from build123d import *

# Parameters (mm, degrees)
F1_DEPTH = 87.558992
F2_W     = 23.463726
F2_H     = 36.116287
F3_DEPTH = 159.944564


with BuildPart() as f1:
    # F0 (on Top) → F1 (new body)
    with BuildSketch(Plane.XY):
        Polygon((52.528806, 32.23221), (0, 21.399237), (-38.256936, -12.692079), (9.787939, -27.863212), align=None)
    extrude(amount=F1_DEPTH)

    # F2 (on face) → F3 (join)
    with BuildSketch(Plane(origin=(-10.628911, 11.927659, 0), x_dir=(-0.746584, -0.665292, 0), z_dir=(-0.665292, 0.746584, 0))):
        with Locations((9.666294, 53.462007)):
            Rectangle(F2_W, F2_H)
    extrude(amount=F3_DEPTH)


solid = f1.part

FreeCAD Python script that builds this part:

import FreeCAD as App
import Part
import Sketcher

V = App.Vector


def add_polygon(sketch, points):
    """Adds a closed chain of lines whose ends are joined by coincident constraints."""
    first, n = sketch.GeometryCount, len(points)
    for a, b in zip(points, points[1:] + points[:1]):
        sketch.addGeometry(Part.LineSegment(App.Vector(*a, 0), App.Vector(*b, 0)), False)
    for i in range(n):
        sketch.addConstraint(Sketcher.Constraint("Coincident", first + i, 2, first + (i + 1) % n, 1))

doc = App.newDocument("Part")
body = doc.addObject("PartDesign::Body", "Body")

sketch1 = body.newObject("Sketcher::SketchObject", "Sketch")
sketch1.AttachmentSupport = (doc.getObject("XY_Plane"), [""])
sketch1.MapMode = "FlatFace"
add_polygon(sketch1, [(53, 32), (0, 21), (-38, -13), (10, -28)])
sketch1.addConstraint(Sketcher.Constraint("PointOnObject", 0, 2, -2))
sketch1.addConstraint(Sketcher.Constraint("DistanceY", 1, 2, -1, 1, 12.692079))
sketch1.addConstraint(Sketcher.Constraint("DistanceX", -1, 1, 2, 2, 9.787939))
sketch1.addConstraint(Sketcher.Constraint("DistanceY", -1, 1, 3, 2, 32.23221))
sketch1.addConstraint(Sketcher.Constraint("DistanceY", 2, 2, 0, 2, 49.262449))
sketch1.addConstraint(Sketcher.Constraint("DistanceX", 1, 2, 3, 2, 90.785742))
sketch1.addConstraint(Sketcher.Constraint("Distance", 0, 53.634213))
sketch1.addConstraint(Sketcher.Constraint("Distance", 1, 51.242668))
pad1 = body.newObject("PartDesign::Pad", "Pad")
pad1.Profile = sketch1
pad1.Length = 87.558992

sketch2 = body.newObject("Sketcher::SketchObject", "Sketch001")
sketch2.Placement = App.Placement(V(-10.628911, 11.927659, 0), App.Rotation(V(-0.746583584, -0.665291629, 0), V(0, 0, 1), V(-0.665291629, 0.746583584, 0), "ZXY"))
add_polygon(sketch2, [(-2, 72), (-2, 35), (21, 35), (21, 72)])
sketch2.addConstraint(Sketcher.Constraint("Vertical", 0))
sketch2.addConstraint(Sketcher.Constraint("Horizontal", 1))
sketch2.addConstraint(Sketcher.Constraint("Vertical", 2))
sketch2.addConstraint(Sketcher.Constraint("Horizontal", 3))
sketch2.addConstraint(Sketcher.Constraint("DistanceX", 1, 1, 1, 2, 23.463726))
sketch2.addConstraint(Sketcher.Constraint("DistanceY", 0, 2, 0, 1, 36.116287))
sketch2.addConstraint(Sketcher.Constraint("DistanceX", 0, 2, -1, 1, 2.065569))
sketch2.addConstraint(Sketcher.Constraint("DistanceY", -1, 1, 2, 2, 71.52015))
pad2 = body.newObject("PartDesign::Pad", "Pad001")
pad2.Profile = sketch2
pad2.Length = 159.944564

doc.recompute()
